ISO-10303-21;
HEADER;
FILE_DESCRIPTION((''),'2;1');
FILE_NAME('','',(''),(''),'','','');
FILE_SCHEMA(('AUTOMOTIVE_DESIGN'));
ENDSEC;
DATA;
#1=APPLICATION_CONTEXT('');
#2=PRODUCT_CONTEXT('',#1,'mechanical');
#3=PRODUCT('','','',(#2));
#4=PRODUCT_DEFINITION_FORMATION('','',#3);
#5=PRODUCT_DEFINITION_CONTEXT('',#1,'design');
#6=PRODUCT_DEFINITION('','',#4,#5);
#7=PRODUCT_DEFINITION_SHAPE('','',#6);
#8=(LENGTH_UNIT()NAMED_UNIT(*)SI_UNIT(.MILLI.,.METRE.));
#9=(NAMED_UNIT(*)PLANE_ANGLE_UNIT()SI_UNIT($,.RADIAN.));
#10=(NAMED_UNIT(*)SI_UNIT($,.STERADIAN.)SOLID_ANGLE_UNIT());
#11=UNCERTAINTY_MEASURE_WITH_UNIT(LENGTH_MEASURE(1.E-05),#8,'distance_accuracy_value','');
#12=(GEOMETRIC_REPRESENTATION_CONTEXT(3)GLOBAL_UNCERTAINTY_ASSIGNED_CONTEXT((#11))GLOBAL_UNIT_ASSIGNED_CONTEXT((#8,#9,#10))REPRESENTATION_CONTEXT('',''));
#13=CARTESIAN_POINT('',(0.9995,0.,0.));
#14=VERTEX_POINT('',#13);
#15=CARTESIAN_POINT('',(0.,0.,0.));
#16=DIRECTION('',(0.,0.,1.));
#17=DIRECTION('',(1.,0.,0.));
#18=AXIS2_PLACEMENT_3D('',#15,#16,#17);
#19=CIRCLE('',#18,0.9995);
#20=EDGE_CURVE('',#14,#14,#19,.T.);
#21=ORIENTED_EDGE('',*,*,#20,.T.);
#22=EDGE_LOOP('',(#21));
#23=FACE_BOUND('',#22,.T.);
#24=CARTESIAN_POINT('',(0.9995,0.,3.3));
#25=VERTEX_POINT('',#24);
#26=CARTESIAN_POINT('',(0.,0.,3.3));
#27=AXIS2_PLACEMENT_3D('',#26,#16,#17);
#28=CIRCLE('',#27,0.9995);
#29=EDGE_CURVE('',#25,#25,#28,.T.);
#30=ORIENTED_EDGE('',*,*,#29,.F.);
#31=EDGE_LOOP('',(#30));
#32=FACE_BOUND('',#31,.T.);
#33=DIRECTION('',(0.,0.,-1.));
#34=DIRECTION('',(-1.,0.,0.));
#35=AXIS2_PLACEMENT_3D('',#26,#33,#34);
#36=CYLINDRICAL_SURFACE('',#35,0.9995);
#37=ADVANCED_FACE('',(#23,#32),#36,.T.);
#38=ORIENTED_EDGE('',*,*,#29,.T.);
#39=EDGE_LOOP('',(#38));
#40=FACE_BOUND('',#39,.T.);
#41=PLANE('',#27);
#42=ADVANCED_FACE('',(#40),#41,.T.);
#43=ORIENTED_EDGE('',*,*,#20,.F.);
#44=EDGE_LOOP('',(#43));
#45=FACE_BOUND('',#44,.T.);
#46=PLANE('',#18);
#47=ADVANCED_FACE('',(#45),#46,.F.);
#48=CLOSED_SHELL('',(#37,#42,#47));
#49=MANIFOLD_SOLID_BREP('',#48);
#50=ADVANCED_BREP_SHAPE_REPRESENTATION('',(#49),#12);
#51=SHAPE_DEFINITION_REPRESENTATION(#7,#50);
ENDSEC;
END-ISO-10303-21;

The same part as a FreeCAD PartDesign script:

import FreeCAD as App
import Part
import Sketcher

doc = App.newDocument("Part")
body = doc.addObject("PartDesign::Body", "Body")

sketch1 = body.newObject("Sketcher::SketchObject", "Sketch")
sketch1.AttachmentSupport = (doc.getObject("XY_Plane"), [""])
sketch1.MapMode = "FlatFace"
sketch1.addGeometry(Part.Circle(App.Vector(0, 0, 0), App.Vector(0, 0, 1), 1), False)
sketch1.addConstraint(Sketcher.Constraint("Coincident", 0, 3, -1, 1))
sketch1.addConstraint(Sketcher.Constraint("Diameter", 0, 1.999))
pad1 = body.newObject("PartDesign::Pad", "Pad")
pad1.Profile = sketch1
pad1.Length = 3.3

doc.recompute()
